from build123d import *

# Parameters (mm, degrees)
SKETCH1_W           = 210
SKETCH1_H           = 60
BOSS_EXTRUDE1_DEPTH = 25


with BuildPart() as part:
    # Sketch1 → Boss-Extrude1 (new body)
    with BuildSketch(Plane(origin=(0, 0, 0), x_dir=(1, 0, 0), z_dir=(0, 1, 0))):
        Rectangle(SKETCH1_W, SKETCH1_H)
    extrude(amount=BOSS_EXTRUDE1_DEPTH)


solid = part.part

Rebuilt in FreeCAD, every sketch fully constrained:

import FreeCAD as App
import Part
import Sketcher

V = App.Vector
Q = App.Units.Quantity

doc = App.newDocument("Part")
body = doc.addObject("PartDesign::Body", "Body")

# Sketch on XZ plane
sketch1 = body.newObject("Sketcher::SketchObject", "Sketch")
sketch1.AttachmentSupport = (doc.getObject("XZ_Plane"), [""])
sketch1.MapMode = "FlatFace"
sketch1.addGeometry([
    Part.LineSegment(V(-105, -30, 0), V(-105, 30, 0)),
    Part.LineSegment(V(-105, 30, 0), V(105, 30, 0)),
    Part.LineSegment(V(105, 30, 0), V(105, -30, 0)),
    Part.LineSegment(V(105, -30, 0), V(-105, -30, 0)),
], False)
sketch1.addConstraint([
    Sketcher.Constraint("Coincident", 0, 2, 1, 1),
    Sketcher.Constraint("Coincident", 1, 2, 2, 1),
    Sketcher.Constraint("Coincident", 2, 2, 3, 1),
    Sketcher.Constraint("Coincident", 3, 2, 0, 1),
    Sketcher.Constraint("Vertical", 0),
    Sketcher.Constraint("Horizontal", 1),
    Sketcher.Constraint("Vertical", 2),
    Sketcher.Constraint("Horizontal", 3),
    Sketcher.Constraint("Symmetric", 0, 2, 2, 2, -1, 1),
    Sketcher.Constraint("DistanceX", 1, 1, 1, 2, Q("210 mm")),
    Sketcher.Constraint("DistanceY", 0, 1, 0, 2, Q("60 mm")),
])
pad1 = body.newObject("PartDesign::Pad", "Pad")
pad1.Profile = sketch1
pad1.Length = 25
pad1.Reversed = True

doc.recompute()
